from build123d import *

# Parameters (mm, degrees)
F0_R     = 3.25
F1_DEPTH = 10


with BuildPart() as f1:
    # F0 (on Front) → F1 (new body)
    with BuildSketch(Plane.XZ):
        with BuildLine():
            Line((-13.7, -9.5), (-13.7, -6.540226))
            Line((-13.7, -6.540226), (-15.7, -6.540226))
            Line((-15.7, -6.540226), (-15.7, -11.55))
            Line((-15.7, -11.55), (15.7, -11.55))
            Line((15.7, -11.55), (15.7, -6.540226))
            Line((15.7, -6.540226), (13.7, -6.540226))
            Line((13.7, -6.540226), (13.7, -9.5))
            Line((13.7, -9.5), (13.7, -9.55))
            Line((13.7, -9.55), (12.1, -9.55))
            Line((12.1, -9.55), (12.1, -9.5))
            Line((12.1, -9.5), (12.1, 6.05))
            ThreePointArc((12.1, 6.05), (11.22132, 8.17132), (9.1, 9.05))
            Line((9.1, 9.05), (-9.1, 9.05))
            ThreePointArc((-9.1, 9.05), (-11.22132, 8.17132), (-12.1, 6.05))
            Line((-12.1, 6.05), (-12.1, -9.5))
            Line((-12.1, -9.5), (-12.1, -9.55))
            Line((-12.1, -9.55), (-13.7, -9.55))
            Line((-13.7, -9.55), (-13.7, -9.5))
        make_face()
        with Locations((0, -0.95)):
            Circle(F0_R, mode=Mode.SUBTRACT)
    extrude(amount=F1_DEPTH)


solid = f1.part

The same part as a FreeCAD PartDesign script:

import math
import FreeCAD as App
import Part
import Sketcher

V = App.Vector
Q = App.Units.Quantity

doc = App.newDocument("Part")
params = doc.addObject("Spreadsheet::Sheet", "Params")
for row, (alias, value) in enumerate([
    ("sketch1_radius", "3.000001 mm"),
    ("sketch1_diameter", "6.5 mm"),
    ("sketch1_width", "2 mm"),
    ("sketch1_width2", "31.4 mm"),
    ("sketch1_width3", "1.6 mm"),
    ("pad1_length", "10 mm"),
], start=1):
    params.set(f"A{row}", alias)
    params.set(f"B{row}", "=" + value)
    params.setAlias(f"B{row}", alias)

body = doc.addObject("PartDesign::Body", "Body")

# Sketch on XZ plane
sketch1 = doc.addObject("Sketcher::SketchObject", "Sketch")
body.addObject(sketch1)
sketch1.AttachmentSupport = (doc.XZ_Plane, [""])
sketch1.MapMode = "FlatFace"
sketch1.addGeometry(Part.LineSegment(V(-13.7, -6.5, 0), V(-15.7, -6.5, 0)), False)
sketch1.addGeometry(Part.LineSegment(V(-15.7, -6.5, 0), V(-15.7, -11.6, 0)), False)
sketch1.addGeometry(Part.LineSegment(V(-15.7, -11.6, 0), V(15.7, -11.6, 0)), False)
sketch1.addGeometry(Part.LineSegment(V(15.7, -11.6, 0), V(15.7, -6.5, 0)), False)
sketch1.addGeometry(Part.LineSegment(V(15.7, -6.5, 0), V(13.7, -6.5, 0)), False)
sketch1.addGeometry(Part.LineSegment(V(13.7, -6.5, 0), V(13.7, -9.6, 0)), False)
sketch1.addGeometry(Part.LineSegment(V(13.7, -9.6, 0), V(12.1, -9.6, 0)), False)
sketch1.addGeometry(Part.LineSegment(V(12.1, -9.6, 0), V(12.1, 6, 0)), False)
sketch1.addGeometry(Part.ArcOfCircle(Part.Circle(V(9.1, 6, 0), V(0, 0, 1), 3), math.radians(0), math.radians(90)), False)
sketch1.addGeometry(Part.LineSegment(V(9.1, 9.1, 0), V(-9.1, 9.1, 0)), False)
sketch1.addGeometry(Part.ArcOfCircle(Part.Circle(V(-9.1, 6, 0), V(0, 0, 1), 3), math.radians(90), math.radians(180)), False)
sketch1.addGeometry(Part.LineSegment(V(-12.1, 6, 0), V(-12.1, -9.6, 0)), False)
sketch1.addGeometry(Part.LineSegment(V(-12.1, -9.6, 0), V(-13.7, -9.6, 0)), False)
sketch1.addGeometry(Part.LineSegment(V(-13.7, -9.6, 0), V(-13.7, -6.5, 0)), False)
sketch1.addGeometry(Part.Circle(V(0, -0.9, 0), V(0, 0, 1), 3.2), False)
sketch1.addConstraint(Sketcher.Constraint("Coincident", 0, 2, 1, 1))
sketch1.addConstraint(Sketcher.Constraint("Coincident", 1, 2, 2, 1))
sketch1.addConstraint(Sketcher.Constraint("Coincident", 2, 2, 3, 1))
sketch1.addConstraint(Sketcher.Constraint("Coincident", 3, 2, 4, 1))
sketch1.addConstraint(Sketcher.Constraint("Coincident", 4, 2, 5, 1))
sketch1.addConstraint(Sketcher.Constraint("Coincident", 5, 2, 6, 1))
sketch1.addConstraint(Sketcher.Constraint("Coincident", 6, 2, 7, 1))
sketch1.addConstraint(Sketcher.Constraint("Tangent", 7, 2, 8, 1))
sketch1.addConstraint(Sketcher.Constraint("Tangent", 8, 2, 9, 1))
sketch1.addConstraint(Sketcher.Constraint("Tangent", 9, 2, 10, 1))
sketch1.addConstraint(Sketcher.Constraint("Tangent", 10, 2, 11, 1))
sketch1.addConstraint(Sketcher.Constraint("Coincident", 11, 2, 12, 1))
sketch1.addConstraint(Sketcher.Constraint("Coincident", 12, 2, 13, 1))
sketch1.addConstraint(Sketcher.Constraint("Coincident", 13, 2, 0, 1))
sketch1.addConstraint(Sketcher.Constraint("Horizontal", 0))
sketch1.addConstraint(Sketcher.Constraint("Vertical", 1))
sketch1.addConstraint(Sketcher.Constraint("Horizontal", 2))
sketch1.addConstraint(Sketcher.Constraint("Vertical", 3))
sketch1.addConstraint(Sketcher.Constraint("Horizontal", 4))
sketch1.addConstraint(Sketcher.Constraint("Vertical", 5))
sketch1.addConstraint(Sketcher.Constraint("Horizontal", 6))
sketch1.addConstraint(Sketcher.Constraint("Vertical", 7))
sketch1.addConstraint(Sketcher.Constraint("Horizontal", 9))
sketch1.addConstraint(Sketcher.Constraint("Vertical", 11))
sketch1.addConstraint(Sketcher.Constraint("Horizontal", 12))
sketch1.addConstraint(Sketcher.Constraint("Vertical", 13))
sketch1.addConstraint(Sketcher.Constraint("Equal", 8, 10))
sketch1.addConstraint(Sketcher.Constraint("Symmetric", 0, 2, 3, 2, -2))
sketch1.addConstraint(Sketcher.Constraint("Symmetric", 6, 2, 11, 2, -2))
sketch1.addConstraint(Sketcher.Constraint("PointOnObject", 14, 3, -2))
sketch1.addConstraint(Sketcher.Constraint("Equal", 0, 4))
sketch1.addConstraint(Sketcher.Constraint("Radius", 8, Q("3.000001 mm")))
sketch1.addConstraint(Sketcher.Constraint("Diameter", 14, Q("6.5 mm")))
sketch1.addConstraint(Sketcher.Constraint("DistanceX", 0, 2, 0, 1, Q("2 mm")))
sketch1.addConstraint(Sketcher.Constraint("DistanceX", 2, 1, 2, 2, Q("31.4 mm")))
sketch1.addConstraint(Sketcher.Constraint("DistanceX", 6, 2, 6, 1, Q("1.6 mm")))
sketch1.addConstraint(Sketcher.Constraint("DistanceY", 7, 1, 7, 2, Q("15.6 mm")))
sketch1.addConstraint(Sketcher.Constraint("DistanceY", 14, 3, 8, 3, Q("6.999999 mm")))
sketch1.addConstraint(Sketcher.Constraint("DistanceY", 2, 2, 5, 2, Q("2 mm")))
sketch1.addConstraint(Sketcher.Constraint("DistanceY", -1, 1, 8, 3, Q("6.049999 mm")))
sketch1.addConstraint(Sketcher.Constraint("DistanceY", 1, 2, 1, 1, Q("5.009774 mm")))
sketch1.setExpression("Constraints[31]", "Params.sketch1_radius")
sketch1.setExpression("Constraints[32]", "Params.sketch1_diameter")
sketch1.setExpression("Constraints[33]", "Params.sketch1_width")
sketch1.setExpression("Constraints[34]", "Params.sketch1_width2")
sketch1.setExpression("Constraints[35]", "Params.sketch1_width3")
pad1 = doc.addObject("PartDesign::Pad", "Pad")
body.addObject(pad1)
pad1.Profile = sketch1
pad1.setExpression("Length", "Params.pad1_length")

doc.recompute()
